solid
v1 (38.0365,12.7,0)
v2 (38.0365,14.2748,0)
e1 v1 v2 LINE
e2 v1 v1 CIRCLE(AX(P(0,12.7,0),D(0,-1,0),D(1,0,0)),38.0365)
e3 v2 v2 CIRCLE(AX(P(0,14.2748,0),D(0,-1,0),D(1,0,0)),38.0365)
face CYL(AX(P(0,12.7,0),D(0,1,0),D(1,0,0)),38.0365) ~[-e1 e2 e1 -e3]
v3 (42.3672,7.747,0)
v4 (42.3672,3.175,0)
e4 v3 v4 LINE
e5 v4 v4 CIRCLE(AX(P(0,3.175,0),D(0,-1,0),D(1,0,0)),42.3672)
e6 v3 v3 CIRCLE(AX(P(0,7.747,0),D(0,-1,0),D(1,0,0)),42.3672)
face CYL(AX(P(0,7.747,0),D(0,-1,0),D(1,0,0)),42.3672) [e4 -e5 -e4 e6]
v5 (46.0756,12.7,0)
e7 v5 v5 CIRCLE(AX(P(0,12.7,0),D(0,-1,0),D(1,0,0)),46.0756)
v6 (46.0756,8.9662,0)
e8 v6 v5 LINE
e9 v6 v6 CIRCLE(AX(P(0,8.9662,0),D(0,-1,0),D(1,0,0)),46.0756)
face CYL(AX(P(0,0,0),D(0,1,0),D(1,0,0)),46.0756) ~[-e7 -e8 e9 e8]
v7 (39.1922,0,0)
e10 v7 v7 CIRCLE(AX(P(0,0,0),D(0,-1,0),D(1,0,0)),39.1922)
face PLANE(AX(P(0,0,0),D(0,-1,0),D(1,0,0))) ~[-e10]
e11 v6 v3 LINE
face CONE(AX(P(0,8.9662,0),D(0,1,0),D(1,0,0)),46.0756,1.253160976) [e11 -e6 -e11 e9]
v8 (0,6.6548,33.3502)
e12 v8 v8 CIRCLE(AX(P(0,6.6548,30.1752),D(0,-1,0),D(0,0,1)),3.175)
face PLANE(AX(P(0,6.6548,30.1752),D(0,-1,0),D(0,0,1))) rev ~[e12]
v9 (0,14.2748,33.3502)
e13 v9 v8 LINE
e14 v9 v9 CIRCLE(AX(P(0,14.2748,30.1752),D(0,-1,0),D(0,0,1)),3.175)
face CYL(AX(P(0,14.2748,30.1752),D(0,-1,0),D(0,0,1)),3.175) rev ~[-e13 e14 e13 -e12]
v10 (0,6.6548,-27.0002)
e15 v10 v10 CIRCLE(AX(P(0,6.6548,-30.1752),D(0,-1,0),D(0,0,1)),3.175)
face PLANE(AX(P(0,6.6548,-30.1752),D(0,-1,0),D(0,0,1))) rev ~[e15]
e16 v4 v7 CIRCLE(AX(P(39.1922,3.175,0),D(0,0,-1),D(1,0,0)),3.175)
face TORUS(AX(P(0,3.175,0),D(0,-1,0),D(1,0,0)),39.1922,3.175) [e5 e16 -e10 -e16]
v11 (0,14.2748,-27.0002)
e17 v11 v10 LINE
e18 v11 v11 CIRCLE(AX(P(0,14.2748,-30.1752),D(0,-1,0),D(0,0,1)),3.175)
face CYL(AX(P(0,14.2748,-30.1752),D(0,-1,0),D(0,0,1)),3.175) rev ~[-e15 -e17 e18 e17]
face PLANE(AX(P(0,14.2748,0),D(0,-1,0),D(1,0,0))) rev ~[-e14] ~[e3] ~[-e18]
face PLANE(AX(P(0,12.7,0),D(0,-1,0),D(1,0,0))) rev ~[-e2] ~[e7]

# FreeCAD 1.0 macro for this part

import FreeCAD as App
import Part
import Sketcher

V = App.Vector
Q = App.Units.Quantity


def edges_at(feature, points):
    """Names of the edges that pass closest to the given points."""
    edges = feature.Shape.Edges
    near = lambda p: min(range(len(edges)), key=lambda i: edges[i].distToShape(Part.Vertex(*p))[0])
    return sorted({f"Edge{near(p) + 1}" for p in points})

doc = App.newDocument("Part")
params = doc.addObject("Spreadsheet::Sheet", "Params")
for row, (alias, value) in enumerate([
    ("sketch1_width", "1.668 in"),
    ("sketch1_height", "0.062 in"),
    ("sketch1_height2", "0.147 in"),
    ("revolution_angle", "360 deg"),
    ("sketch2_diameter", "0.25 in"),
    ("hole_diameter", "0.25 in"),
    ("hole_depth", "0.3 in"),
    ("fillet_radius", "0.125 in"),
], start=1):
    params.set(f"A{row}", alias)
    params.set(f"B{row}", "=" + value)
    params.setAlias(f"B{row}", alias)

body = doc.addObject("PartDesign::Body", "Body")

sketch1 = body.newObject("Sketcher::SketchObject", "Sketch")
sketch1.AttachmentSupport = (doc.getObject("XY_Plane"), [""])
sketch1.MapMode = "FlatFace"
sketch1.addGeometry([
    Part.LineSegment(V(46.0756, 12.7, 0), V(38.0365, 12.7, 0)),
    Part.LineSegment(V(38.0365, 12.7, 0), V(38.0365, 14.2748, 0)),
    Part.LineSegment(V(38.0365, 14.2748, 0), V(0, 14.2748, 0)),
    Part.LineSegment(V(0, 14.2748, 0), V(0, 0, 0)),
    Part.LineSegment(V(0, 0, 0), V(42.3672, 0, 0)),
    Part.LineSegment(V(42.3672, 0, 0), V(42.3672, 7.747, 0)),
    Part.LineSegment(V(42.3672, 7.747, 0), V(46.0756, 8.9662, 0)),
    Part.LineSegment(V(46.0756, 8.9662, 0), V(46.0756, 12.7, 0)),
], False)
sketch1.addConstraint([
    Sketcher.Constraint("Coincident", 0, 2, 1, 1),
    Sketcher.Constraint("Coincident", 1, 2, 2, 1),
    Sketcher.Constraint("Coincident", 2, 2, 3, 1),
    Sketcher.Constraint("Coincident", 3, 2, 4, 1),
    Sketcher.Constraint("Coincident", 4, 2, 5, 1),
    Sketcher.Constraint("Coincident", 5, 2, 6, 1),
    Sketcher.Constraint("Coincident", 6, 2, 7, 1),
    Sketcher.Constraint("Coincident", 7, 2, 0, 1),
    Sketcher.Constraint("Horizontal", 0),
    Sketcher.Constraint("Vertical", 1),
    Sketcher.Constraint("Horizontal", 2),
    Sketcher.Constraint("Vertical", 3),
    Sketcher.Constraint("Horizontal", 4),
    Sketcher.Constraint("Vertical", 5),
    Sketcher.Constraint("Vertical", 7),
    Sketcher.Constraint("Coincident", 3, 2, -1, 1),
    Sketcher.Constraint("DistanceY", -1, 1, 0, 2, Q("0.5 in")),
    Sketcher.Constraint("DistanceX", 4, 1, 4, 2, Q("1.668 in")),
    Sketcher.Constraint("DistanceY", 1, 1, 1, 2, Q("0.062 in")),
    Sketcher.Constraint("DistanceY", 7, 1, 7, 2, Q("0.147 in")),
    Sketcher.Constraint("DistanceX", 2, 2, 2, 1, Q("1.4975 in")),
    Sketcher.Constraint("DistanceX", -1, 1, 6, 2, Q("1.814 in")),
    Sketcher.Constraint("DistanceY", 5, 2, 0, 2, Q("0.195 in")),
])
sketch1.setExpression("Constraints[17]", "Params.sketch1_width")
sketch1.setExpression("Constraints[18]", "Params.sketch1_height")
sketch1.setExpression("Constraints[19]", "Params.sketch1_height2")
revolution = body.newObject("PartDesign::Revolution", "Revolution")
revolution.Profile = sketch1
revolution.ReferenceAxis = (sketch1, ["V_Axis"])
revolution.setExpression("Angle", "Params.revolution_angle")

sketch2 = body.newObject("Sketcher::SketchObject", "Sketch001")
sketch2.AttachmentSupport = (doc.getObject("XZ_Plane"), [""])
sketch2.MapMode = "FlatFace"
sketch2.AttachmentOffset = App.Placement(V(0, 0, -0.562 * 25.4), App.Rotation())
sketch2.addGeometry([
    Part.Circle(V(0, -30.1752, 0), V(0, 0, 1), 3.175),
    Part.Circle(V(0, 30.1752, 0), V(0, 0, 1), 3.175),
], False)
sketch2.addConstraint([
    Sketcher.Constraint("Equal", 0, 1),
    Sketcher.Constraint("Symmetric", 0, 3, 1, 3, -1, 1),
    Sketcher.Constraint("PointOnObject", 0, 3, -2),
    Sketcher.Constraint("Diameter", 0, Q("0.25 in")),
    Sketcher.Constraint("DistanceY", 0, 3, -1, 1, Q("1.188 in")),
])
sketch2.setExpression("Constraints[3]", "Params.sketch2_diameter")
doc.recompute()
hole = body.newObject("PartDesign::Hole", "Hole")
hole.Profile = sketch2
hole.ThreadType = "None"
hole.setExpression("Diameter", "Params.hole_diameter")
hole.DepthType = "Dimension"
hole.setExpression("Depth", "Params.hole_depth")
hole.DrillPoint = "Flat"
hole.Reversed = True
doc.recompute()

fillet = body.newObject("PartDesign::Fillet", "Fillet")
fillet.Base = (hole, edges_at(hole, [(-42.367, 0, 0)]))
fillet.setExpression("Radius", "Params.fillet_radius")

doc.recompute()
